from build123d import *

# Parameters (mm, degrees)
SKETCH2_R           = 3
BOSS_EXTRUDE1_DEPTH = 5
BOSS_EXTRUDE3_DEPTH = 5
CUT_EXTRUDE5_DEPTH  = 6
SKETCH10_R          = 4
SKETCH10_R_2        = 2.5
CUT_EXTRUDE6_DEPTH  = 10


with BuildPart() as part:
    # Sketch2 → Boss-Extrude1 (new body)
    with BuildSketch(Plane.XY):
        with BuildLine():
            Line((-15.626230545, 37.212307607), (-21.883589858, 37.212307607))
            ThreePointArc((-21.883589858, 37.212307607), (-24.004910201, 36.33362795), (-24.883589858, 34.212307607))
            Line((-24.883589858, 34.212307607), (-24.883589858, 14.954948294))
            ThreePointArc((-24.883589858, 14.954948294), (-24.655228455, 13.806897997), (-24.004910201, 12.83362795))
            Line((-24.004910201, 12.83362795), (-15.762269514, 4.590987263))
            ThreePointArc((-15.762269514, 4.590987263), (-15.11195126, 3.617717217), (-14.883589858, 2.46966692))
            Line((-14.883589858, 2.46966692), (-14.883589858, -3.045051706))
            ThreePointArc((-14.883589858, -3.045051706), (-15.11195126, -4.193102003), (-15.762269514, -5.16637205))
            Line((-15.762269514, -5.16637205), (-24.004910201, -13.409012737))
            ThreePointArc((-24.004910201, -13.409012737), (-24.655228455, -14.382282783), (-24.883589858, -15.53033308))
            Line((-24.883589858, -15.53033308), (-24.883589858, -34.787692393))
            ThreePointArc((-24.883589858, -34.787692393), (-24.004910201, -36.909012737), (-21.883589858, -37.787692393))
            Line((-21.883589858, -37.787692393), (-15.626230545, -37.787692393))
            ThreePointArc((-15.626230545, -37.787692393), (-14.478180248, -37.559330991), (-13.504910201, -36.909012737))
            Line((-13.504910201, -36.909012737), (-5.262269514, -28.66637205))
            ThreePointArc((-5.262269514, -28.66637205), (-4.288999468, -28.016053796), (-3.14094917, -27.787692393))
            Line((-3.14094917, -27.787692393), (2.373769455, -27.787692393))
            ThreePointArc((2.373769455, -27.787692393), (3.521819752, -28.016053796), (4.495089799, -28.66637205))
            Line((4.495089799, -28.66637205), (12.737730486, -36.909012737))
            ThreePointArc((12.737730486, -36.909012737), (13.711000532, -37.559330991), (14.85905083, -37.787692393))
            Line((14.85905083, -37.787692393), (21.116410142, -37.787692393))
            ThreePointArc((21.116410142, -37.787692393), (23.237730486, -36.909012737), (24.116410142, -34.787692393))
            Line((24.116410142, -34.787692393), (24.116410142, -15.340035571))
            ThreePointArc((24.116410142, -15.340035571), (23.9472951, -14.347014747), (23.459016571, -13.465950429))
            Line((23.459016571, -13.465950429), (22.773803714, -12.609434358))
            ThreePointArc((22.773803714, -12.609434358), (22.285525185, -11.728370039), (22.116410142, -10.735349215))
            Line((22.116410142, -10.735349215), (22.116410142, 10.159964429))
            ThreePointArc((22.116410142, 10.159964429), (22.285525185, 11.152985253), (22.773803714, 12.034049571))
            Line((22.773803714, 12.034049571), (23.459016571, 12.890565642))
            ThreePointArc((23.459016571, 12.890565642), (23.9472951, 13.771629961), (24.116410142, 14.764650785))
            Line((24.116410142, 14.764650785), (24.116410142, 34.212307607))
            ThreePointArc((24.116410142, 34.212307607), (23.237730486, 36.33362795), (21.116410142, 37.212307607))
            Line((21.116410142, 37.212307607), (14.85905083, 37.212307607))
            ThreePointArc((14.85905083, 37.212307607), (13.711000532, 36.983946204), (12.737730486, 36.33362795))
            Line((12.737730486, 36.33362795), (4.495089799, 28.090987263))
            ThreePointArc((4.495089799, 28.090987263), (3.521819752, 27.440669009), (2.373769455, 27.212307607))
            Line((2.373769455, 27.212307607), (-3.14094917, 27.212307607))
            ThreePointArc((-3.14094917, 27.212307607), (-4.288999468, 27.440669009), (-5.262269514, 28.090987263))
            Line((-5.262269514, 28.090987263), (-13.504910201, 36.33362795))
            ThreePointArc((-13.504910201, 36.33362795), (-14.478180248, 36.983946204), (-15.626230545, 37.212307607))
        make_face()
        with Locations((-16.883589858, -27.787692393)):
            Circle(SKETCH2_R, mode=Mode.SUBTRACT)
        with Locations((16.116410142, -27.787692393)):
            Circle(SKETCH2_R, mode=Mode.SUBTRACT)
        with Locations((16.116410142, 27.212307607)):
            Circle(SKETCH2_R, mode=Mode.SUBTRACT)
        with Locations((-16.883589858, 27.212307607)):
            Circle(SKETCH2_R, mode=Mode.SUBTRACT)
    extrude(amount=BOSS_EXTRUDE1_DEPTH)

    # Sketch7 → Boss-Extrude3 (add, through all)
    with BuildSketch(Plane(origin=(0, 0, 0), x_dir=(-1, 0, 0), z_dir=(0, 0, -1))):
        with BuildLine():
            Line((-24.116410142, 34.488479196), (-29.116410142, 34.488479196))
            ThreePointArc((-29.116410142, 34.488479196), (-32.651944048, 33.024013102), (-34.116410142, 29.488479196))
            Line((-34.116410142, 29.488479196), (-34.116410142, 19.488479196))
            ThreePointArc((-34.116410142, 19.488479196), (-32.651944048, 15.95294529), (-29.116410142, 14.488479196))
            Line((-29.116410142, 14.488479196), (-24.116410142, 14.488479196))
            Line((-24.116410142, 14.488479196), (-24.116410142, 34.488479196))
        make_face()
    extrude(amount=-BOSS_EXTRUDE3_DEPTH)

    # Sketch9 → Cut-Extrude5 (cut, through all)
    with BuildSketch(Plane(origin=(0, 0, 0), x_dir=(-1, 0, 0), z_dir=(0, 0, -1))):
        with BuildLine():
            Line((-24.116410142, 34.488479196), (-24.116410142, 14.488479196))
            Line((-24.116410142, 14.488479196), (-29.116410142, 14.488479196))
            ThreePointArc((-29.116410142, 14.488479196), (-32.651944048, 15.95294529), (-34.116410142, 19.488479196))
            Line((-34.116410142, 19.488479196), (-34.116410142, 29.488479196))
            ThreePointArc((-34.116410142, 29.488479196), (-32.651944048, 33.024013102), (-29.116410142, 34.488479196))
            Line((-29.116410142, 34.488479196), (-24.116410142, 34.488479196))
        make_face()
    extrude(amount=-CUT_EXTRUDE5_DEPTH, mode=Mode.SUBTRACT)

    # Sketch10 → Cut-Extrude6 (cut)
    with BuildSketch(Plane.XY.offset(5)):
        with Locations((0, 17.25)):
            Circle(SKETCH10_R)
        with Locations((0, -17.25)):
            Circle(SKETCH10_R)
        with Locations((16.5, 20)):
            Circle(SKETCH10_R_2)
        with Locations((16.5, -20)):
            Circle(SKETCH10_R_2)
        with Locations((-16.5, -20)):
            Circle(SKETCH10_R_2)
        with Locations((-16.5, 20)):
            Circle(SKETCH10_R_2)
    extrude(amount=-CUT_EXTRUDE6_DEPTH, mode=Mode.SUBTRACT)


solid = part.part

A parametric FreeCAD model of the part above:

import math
import FreeCAD as App
import Part
import Sketcher

V = App.Vector
Q = App.Units.Quantity

doc = App.newDocument("Part")
body = doc.addObject("PartDesign::Body", "Body")

# Sketch on XY plane
sketch1 = doc.addObject("Sketcher::SketchObject", "Sketch")
body.addObject(sketch1)
sketch1.AttachmentSupport = (doc.XY_Plane, [""])
sketch1.MapMode = "FlatFace"
sketch1.addGeometry([
    Part.LineSegment(V(-15.6, 37.2, 0), V(-21.9, 37.2, 0)),  # 0
    Part.ArcOfCircle(Part.Circle(V(-21.9, 34.2, 0), V(0, 0, 1), 3), math.radians(90), math.radians(180)),  # 1
    Part.LineSegment(V(-24.9, 34.2, 0), V(-24.9, 15, 0)),  # 2
    Part.ArcOfCircle(Part.Circle(V(-21.9, 15, 0), V(0, 0, 1), 3), math.radians(-180), math.radians(-135)),  # 3
    Part.LineSegment(V(-24, 12.8, 0), V(-15.8, 4.6, 0)),  # 4
    Part.ArcOfCircle(Part.Circle(V(-17.9, 2.5, 0), V(0, 0, 1), 3), math.radians(0), math.radians(45)),  # 5
    Part.LineSegment(V(-14.9, 2.5, 0), V(-14.9, -3, 0)),  # 6
    Part.ArcOfCircle(Part.Circle(V(-17.9, -3, 0), V(0, 0, 1), 3), math.radians(-45), math.radians(0)),  # 7
    Part.LineSegment(V(-15.8, -5.2, 0), V(-24, -13.4, 0)),  # 8
    Part.ArcOfCircle(Part.Circle(V(-21.9, -15.5, 0), V(0, 0, 1), 3), math.radians(135), math.radians(180)),  # 9
    Part.LineSegment(V(-24.9, -15.5, 0), V(-24.9, -34.8, 0)),  # 10
    Part.ArcOfCircle(Part.Circle(V(-21.9, -34.8, 0), V(0, 0, 1), 3), math.radians(180), math.radians(270)),  # 11
    Part.LineSegment(V(-21.9, -37.8, 0), V(-15.6, -37.8, 0)),  # 12
    Part.ArcOfCircle(Part.Circle(V(-15.6, -34.8, 0), V(0, 0, 1), 3), math.radians(-90), math.radians(-45)),  # 13
    Part.LineSegment(V(-13.5, -36.9, 0), V(-5.3, -28.7, 0)),  # 14
    Part.ArcOfCircle(Part.Circle(V(-3.1, -30.8, 0), V(0, 0, 1), 3), math.radians(90), math.radians(135)),  # 15
    Part.LineSegment(V(-3.1, -27.8, 0), V(2.4, -27.8, 0)),  # 16
    Part.ArcOfCircle(Part.Circle(V(2.4, -30.8, 0), V(0, 0, 1), 3), math.radians(45), math.radians(90)),  # 17
    Part.LineSegment(V(4.5, -28.7, 0), V(12.7, -36.9, 0)),  # 18
    Part.ArcOfCircle(Part.Circle(V(14.9, -34.8, 0), V(0, 0, 1), 3), math.radians(-135), math.radians(-90)),  # 19
    Part.LineSegment(V(14.9, -37.8, 0), V(21.1, -37.8, 0)),  # 20
    Part.ArcOfCircle(Part.Circle(V(21.1, -34.8, 0), V(0, 0, 1), 3), math.radians(-90), math.radians(0)),  # 21
    Part.LineSegment(V(24.1, -34.8, 0), V(24.1, -15.3, 0)),  # 22
    Part.ArcOfCircle(Part.Circle(V(21.1, -15.3, 0), V(0, 0, 1), 3), math.radians(0), math.radians(39)),  # 23
    Part.LineSegment(V(23.5, -13.5, 0), V(22.8, -12.6, 0)),  # 24
    Part.ArcOfCircle(Part.Circle(V(25.1, -10.7, 0), V(0, 0, 1), 3), math.radians(-180), math.radians(-141)),  # 25
    Part.LineSegment(V(22.1, -10.7, 0), V(22.1, 10.2, 0)),  # 26
    Part.ArcOfCircle(Part.Circle(V(25.1, 10.2, 0), V(0, 0, 1), 3), math.radians(141), math.radians(180)),  # 27
    Part.LineSegment(V(22.8, 12, 0), V(23.5, 12.9, 0)),  # 28
    Part.ArcOfCircle(Part.Circle(V(21.1, 14.8, 0), V(0, 0, 1), 3), math.radians(-39), math.radians(0)),  # 29
    Part.LineSegment(V(24.1, 14.8, 0), V(24.1, 34.2, 0)),  # 30
    Part.ArcOfCircle(Part.Circle(V(21.1, 34.2, 0), V(0, 0, 1), 3), math.radians(0), math.radians(90)),  # 31
    Part.LineSegment(V(21.1, 37.2, 0), V(14.9, 37.2, 0)),  # 32
    Part.ArcOfCircle(Part.Circle(V(14.9, 34.2, 0), V(0, 0, 1), 3), math.radians(90), math.radians(135)),  # 33
    Part.LineSegment(V(12.7, 36.3, 0), V(4.5, 28.1, 0)),  # 34
    Part.ArcOfCircle(Part.Circle(V(2.4, 30.2, 0), V(0, 0, 1), 3), math.radians(-90), math.radians(-45)),  # 35
    Part.LineSegment(V(2.4, 27.2, 0), V(-3.1, 27.2, 0)),  # 36
    Part.ArcOfCircle(Part.Circle(V(-3.1, 30.2, 0), V(0, 0, 1), 3), math.radians(-135), math.radians(-90)),  # 37
    Part.LineSegment(V(-5.3, 28.1, 0), V(-13.5, 36.3, 0)),  # 38
    Part.ArcOfCircle(Part.Circle(V(-15.6, 34.2, 0), V(0, 0, 1), 3), math.radians(45), math.radians(90)),  # 39
    Part.Circle(V(-16.9, -27.8, 0), V(0, 0, 1), 3),  # 40
    Part.Circle(V(16.1, -27.8, 0), V(0, 0, 1), 3),  # 41
    Part.Circle(V(-16.9, 27.2, 0), V(0, 0, 1), 3),  # 42
    Part.Circle(V(16.1, 27.2, 0), V(0, 0, 1), 3),  # 43
], False)
sketch1.addConstraint([
    Sketcher.Constraint("Tangent", 0, 2, 1, 1),
    Sketcher.Constraint("Tangent", 1, 2, 2, 1),
    Sketcher.Constraint("Tangent", 2, 2, 3, 1),
    Sketcher.Constraint("Tangent", 3, 2, 4, 1),
    Sketcher.Constraint("Tangent", 4, 2, 5, 2),
    Sketcher.Constraint("Tangent", 5, 1, 6, 1),
    Sketcher.Constraint("Tangent", 6, 2, 7, 2),
    Sketcher.Constraint("Tangent", 7, 1, 8, 1),
    Sketcher.Constraint("Tangent", 8, 2, 9, 1),
    Sketcher.Constraint("Tangent", 9, 2, 10, 1),
    Sketcher.Constraint("Tangent", 10, 2, 11, 1),
    Sketcher.Constraint("Tangent", 11, 2, 12, 1),
    Sketcher.Constraint("Tangent", 12, 2, 13, 1),
    Sketcher.Constraint("Tangent", 13, 2, 14, 1),
    Sketcher.Constraint("Tangent", 14, 2, 15, 2),
    Sketcher.Constraint("Tangent", 15, 1, 16, 1),
    Sketcher.Constraint("Tangent", 16, 2, 17, 2),
    Sketcher.Constraint("Tangent", 17, 1, 18, 1),
    Sketcher.Constraint("Tangent", 18, 2, 19, 1),
    Sketcher.Constraint("Tangent", 19, 2, 20, 1),
    Sketcher.Constraint("Tangent", 20, 2, 21, 1),
    Sketcher.Constraint("Tangent", 21, 2, 22, 1),
    Sketcher.Constraint("Tangent", 22, 2, 23, 1),
    Sketcher.Constraint("Tangent", 23, 2, 24, 1),
    Sketcher.Constraint("Tangent", 24, 2, 25, 2),
    Sketcher.Constraint("Tangent", 25, 1, 26, 1),
    Sketcher.Constraint("Tangent", 26, 2, 27, 2),
    Sketcher.Constraint("Tangent", 27, 1, 28, 1),
    Sketcher.Constraint("Tangent", 28, 2, 29, 1),
    Sketcher.Constraint("Tangent", 29, 2, 30, 1),
    Sketcher.Constraint("Tangent", 30, 2, 31, 1),
    Sketcher.Constraint("Tangent", 31, 2, 32, 1),
    Sketcher.Constraint("Tangent", 32, 2, 33, 1),
    Sketcher.Constraint("Tangent", 33, 2, 34, 1),
    Sketcher.Constraint("Tangent", 34, 2, 35, 2),
    Sketcher.Constraint("Tangent", 35, 1, 36, 1),
    Sketcher.Constraint("Tangent", 36, 2, 37, 2),
    Sketcher.Constraint("Tangent", 37, 1, 38, 1),
    Sketcher.Constraint("Tangent", 38, 2, 39, 1),
    Sketcher.Constraint("Tangent", 39, 2, 0, 1),
    Sketcher.Constraint("Horizontal", 0),
    Sketcher.Constraint("Vertical", 2),
    Sketcher.Constraint("Vertical", 6),
    Sketcher.Constraint("Vertical", 10),
    Sketcher.Constraint("Horizontal", 12),
    Sketcher.Constraint("Horizontal", 16),
    Sketcher.Constraint("Horizontal", 20),
    Sketcher.Constraint("Vertical", 22),
    Sketcher.Constraint("Vertical", 26),
    Sketcher.Constraint("Vertical", 30),
    Sketcher.Constraint("Horizontal", 32),
    Sketcher.Constraint("Horizontal", 36),
    Sketcher.Constraint("Equal", 1, 3),
    Sketcher.Constraint("Equal", 3, 5),
    Sketcher.Constraint("Equal", 5, 7),
    Sketcher.Constraint("Equal", 7, 9),
    Sketcher.Constraint("Equal", 9, 11),
    Sketcher.Constraint("Equal", 11, 13),
    Sketcher.Constraint("Equal", 13, 15),
    Sketcher.Constraint("Equal", 15, 17),
    Sketcher.Constraint("Equal", 17, 19),
    Sketcher.Constraint("Equal", 19, 21),
    Sketcher.Constraint("Equal", 21, 23),
    Sketcher.Constraint("Equal", 23, 25),
    Sketcher.Constraint("Equal", 25, 27),
    Sketcher.Constraint("Equal", 27, 29),
    Sketcher.Constraint("Equal", 29, 31),
    Sketcher.Constraint("Equal", 31, 33),
    Sketcher.Constraint("Equal", 33, 35),
    Sketcher.Constraint("Equal", 35, 37),
    Sketcher.Constraint("Equal", 37, 39),
    Sketcher.Constraint("Equal", 39, 40),
    Sketcher.Constraint("Equal", 40, 41),
    Sketcher.Constraint("Equal", 41, 42),
    Sketcher.Constraint("Equal", 42, 43),
    Sketcher.Constraint("Perpendicular", 4, 8),
    Sketcher.Constraint("Parallel", 8, 14),
    Sketcher.Constraint("Perpendicular", 14, 18),
    Sketcher.Constraint("Perpendicular", 18, 34),
    Sketcher.Constraint("Perpendicular", 34, 38),
    Sketcher.Constraint("Horizontal", 13, 3, 19, 3),
    Sketcher.Constraint("Horizontal", 1, 3, 31, 3),
    Sketcher.Constraint("Horizontal", 40, 3, 41, 3),
    Sketcher.Constraint("Horizontal", 42, 3, 43, 3),
    Sketcher.Constraint("Horizontal", 41, 3, 15, 1),
    Sketcher.Constraint("Horizontal", 14, 2, 17, 1),
    Sketcher.Constraint("Horizontal", 43, 3, 35, 1),
    Sketcher.Constraint("Vertical", 3, 3, 9, 3),
    Sketcher.Constraint("Vertical", 23, 3, 29, 3),
    Sketcher.Constraint("Vertical", 19, 3, 33, 3),
    Sketcher.Constraint("Vertical", 17, 3, 35, 3),
    Sketcher.Constraint("Vertical", 15, 3, 37, 3),
    Sketcher.Constraint("Vertical", 40, 3, 42, 3),
    Sketcher.Constraint("Vertical", 41, 3, 43, 3),
    Sketcher.Constraint("Vertical", 24, 2, 27, 1),
    Sketcher.Constraint("Equal", 12, 20),
    Sketcher.Constraint("Equal", 36, 6),
    Sketcher.Constraint("Equal", 2, 10),
    Sketcher.Constraint("Equal", 22, 30),
    Sketcher.Constraint("Equal", 8, 14),
    Sketcher.Constraint("Diameter", 40, Q("6 mm")),
    Sketcher.Constraint("DistanceX", 0, 2, 0, 1, Q("6.257359 mm")),
    Sketcher.Constraint("DistanceX", 16, 1, 16, 2, Q("5.514719 mm")),
    Sketcher.Constraint("DistanceY", 2, 2, 2, 1, Q("19.257359 mm")),
    Sketcher.Constraint("DistanceY", 22, 1, 22, 2, Q("19.447657 mm")),
    Sketcher.Constraint("DistanceY", 26, 1, 26, 2, Q("20.895314 mm")),
    Sketcher.Constraint("DistanceX", 1, 3, -1, 1, Q("21.88359 mm")),
    Sketcher.Constraint("DistanceY", -1, 1, 3, 3, Q("14.954948 mm")),
    Sketcher.Constraint("DistanceX", 5, 3, -1, 1, Q("17.88359 mm")),
    Sketcher.Constraint("DistanceX", -1, 1, 25, 3, Q("25.11641 mm")),
    Sketcher.Constraint("DistanceX", 40, 3, -1, 1, Q("16.88359 mm")),
    Sketcher.Constraint("DistanceX", -1, 1, 41, 3, Q("16.11641 mm")),
])
pad1 = doc.addObject("PartDesign::Pad", "Pad")
body.addObject(pad1)
pad1.Profile = sketch1
pad1.Length = 5

# Sketch on XY plane
sketch2 = doc.addObject("Sketcher::SketchObject", "Sketch001")
body.addObject(sketch2)
sketch2.AttachmentSupport = (doc.XY_Plane, [""])
sketch2.MapMode = "FlatFace"
sketch2.addGeometry([
    Part.LineSegment(V(24, 34, 0), V(29, 34, 0)),  # 0
    Part.ArcOfCircle(Part.Circle(V(29, 29, 0), V(0, 0, 1), 5), math.radians(0), math.radians(90)),  # 1
    Part.LineSegment(V(34, 29, 0), V(34, 19, 0)),  # 2
    Part.ArcOfCircle(Part.Circle(V(29, 19, 0), V(0, 0, 1), 5), math.radians(-90), math.radians(0)),  # 3
    Part.LineSegment(V(29, 14, 0), V(24, 14, 0)),  # 4
    Part.LineSegment(V(24, 14, 0), V(24, 34, 0)),  # 5
], False)
sketch2.addConstraint([
    Sketcher.Constraint("Tangent", 0, 2, 1, 2),
    Sketcher.Constraint("Tangent", 1, 1, 2, 1),
    Sketcher.Constraint("Tangent", 2, 2, 3, 2),
    Sketcher.Constraint("Tangent", 3, 1, 4, 1),
    Sketcher.Constraint("Coincident", 4, 2, 5, 1),
    Sketcher.Constraint("Coincident", 5, 2, 0, 1),
    Sketcher.Constraint("Horizontal", 0),
    Sketcher.Constraint("Vertical", 2),
    Sketcher.Constraint("Horizontal", 4),
    Sketcher.Constraint("Vertical", 5),
    Sketcher.Constraint("Equal", 1, 3),
    Sketcher.Constraint("Radius", 1, Q("5 mm")),
    Sketcher.Constraint("DistanceX", 0, 1, 0, 2, Q("5 mm")),
    Sketcher.Constraint("DistanceY", 2, 2, 2, 1, Q("10 mm")),
    Sketcher.Constraint("DistanceX", -1, 1, 1, 3, Q("29.11641 mm")),
    Sketcher.Constraint("DistanceY", -1, 1, 1, 3, Q("29.488479 mm")),
])
pad2 = doc.addObject("PartDesign::Pad", "Pad001")
body.addObject(pad2)
pad2.Profile = sketch2
pad2.Length = 5

# Sketch on XY plane
sketch3 = doc.addObject("Sketcher::SketchObject", "Sketch002")
body.addObject(sketch3)
sketch3.AttachmentSupport = (doc.XY_Plane, [""])
sketch3.MapMode = "FlatFace"
sketch3.addGeometry([
    Part.LineSegment(V(24, 14, 0), V(24, 34, 0)),  # 0
    Part.LineSegment(V(24, 34, 0), V(29, 34, 0)),  # 1
    Part.ArcOfCircle(Part.Circle(V(29, 29, 0), V(0, 0, 1), 5), math.radians(0), math.radians(90)),  # 2
    Part.LineSegment(V(34, 29, 0), V(34, 19, 0)),  # 3
    Part.ArcOfCircle(Part.Circle(V(29, 19, 0), V(0, 0, 1), 5), math.radians(-90), math.radians(0)),  # 4
    Part.LineSegment(V(29, 14, 0), V(24, 14, 0)),  # 5
], False)
sketch3.addConstraint([
    Sketcher.Constraint("Coincident", 0, 2, 1, 1),
    Sketcher.Constraint("Tangent", 1, 2, 2, 2),
    Sketcher.Constraint("Tangent", 2, 1, 3, 1),
    Sketcher.Constraint("Tangent", 3, 2, 4, 2),
    Sketcher.Constraint("Tangent", 4, 1, 5, 1),
    Sketcher.Constraint("Coincident", 5, 2, 0, 1),
    Sketcher.Constraint("Vertical", 0),
    Sketcher.Constraint("Horizontal", 1),
    Sketcher.Constraint("Vertical", 3),
    Sketcher.Constraint("Horizontal", 5),
    Sketcher.Constraint("Equal", 2, 4),
    Sketcher.Constraint("Radius", 2, Q("5 mm")),
    Sketcher.Constraint("DistanceX", 1, 1, 1, 2, Q("5 mm")),
    Sketcher.Constraint("DistanceY", 0, 1, 0, 2, Q("20 mm")),
    Sketcher.Constraint("DistanceX", -1, 1, 2, 3, Q("29.11641 mm")),
    Sketcher.Constraint("DistanceY", -1, 1, 2, 3, Q("29.488479 mm")),
])
pocket1 = doc.addObject("PartDesign::Pocket", "Pocket")
body.addObject(pocket1)
pocket1.Profile = sketch3
pocket1.Type = "ThroughAll"
pocket1.Reversed = True

# Sketch on XY plane
sketch4 = doc.addObject("Sketcher::SketchObject", "Sketch003")
body.addObject(sketch4)
sketch4.AttachmentSupport = (doc.XY_Plane, [""])
sketch4.MapMode = "FlatFace"
sketch4.AttachmentOffset = App.Placement(V(0, 0, 5), App.Rotation())
sketch4.addGeometry([
    Part.Circle(V(0, 17.2, 0), V(0, 0, 1), 4),  # 0
    Part.Circle(V(0, -17.2, 0), V(0, 0, 1), 4),  # 1
    Part.Circle(V(16.5, 20, 0), V(0, 0, 1), 2.5),  # 2
    Part.Circle(V(16.5, -20, 0), V(0, 0, 1), 2.5),  # 3
    Part.Circle(V(-16.5, -20, 0), V(0, 0, 1), 2.5),  # 4
    Part.Circle(V(-16.5, 20, 0), V(0, 0, 1), 2.5),  # 5
], False)
sketch4.addConstraint([
    Sketcher.Constraint("Equal", 0, 1),
    Sketcher.Constraint("Equal", 2, 3),
    Sketcher.Constraint("Equal", 3, 4),
    Sketcher.Constraint("Equal", 4, 5),
    Sketcher.Constraint("Symmetric", 0, 3, 1, 3, -1, 1),
    Sketcher.Constraint("Symmetric", 2, 3, 4, 3, -1, 1),
    Sketcher.Constraint("Symmetric", 3, 3, 5, 3, -1, 1),
    Sketcher.Constraint("Symmetric", 3, 3, 4, 3, -2),
    Sketcher.Constraint("PointOnObject", 0, 3, -2),
    Sketcher.Constraint("Diameter", 0, Q("8 mm")),
    Sketcher.Constraint("Diameter", 2, Q("5 mm")),
    Sketcher.Constraint("DistanceY", -1, 1, 2, 3, Q("20 mm")),
    Sketcher.Constraint("DistanceX", 4, 3, 3, 3, Q("33 mm")),
    Sketcher.Constraint("DistanceY", 1, 3, 0, 3, Q("34.5 mm")),
])
pocket2 = doc.addObject("PartDesign::Pocket", "Pocket001")
body.addObject(pocket2)
pocket2.Profile = sketch4
pocket2.Length = 10

doc.recompute()
